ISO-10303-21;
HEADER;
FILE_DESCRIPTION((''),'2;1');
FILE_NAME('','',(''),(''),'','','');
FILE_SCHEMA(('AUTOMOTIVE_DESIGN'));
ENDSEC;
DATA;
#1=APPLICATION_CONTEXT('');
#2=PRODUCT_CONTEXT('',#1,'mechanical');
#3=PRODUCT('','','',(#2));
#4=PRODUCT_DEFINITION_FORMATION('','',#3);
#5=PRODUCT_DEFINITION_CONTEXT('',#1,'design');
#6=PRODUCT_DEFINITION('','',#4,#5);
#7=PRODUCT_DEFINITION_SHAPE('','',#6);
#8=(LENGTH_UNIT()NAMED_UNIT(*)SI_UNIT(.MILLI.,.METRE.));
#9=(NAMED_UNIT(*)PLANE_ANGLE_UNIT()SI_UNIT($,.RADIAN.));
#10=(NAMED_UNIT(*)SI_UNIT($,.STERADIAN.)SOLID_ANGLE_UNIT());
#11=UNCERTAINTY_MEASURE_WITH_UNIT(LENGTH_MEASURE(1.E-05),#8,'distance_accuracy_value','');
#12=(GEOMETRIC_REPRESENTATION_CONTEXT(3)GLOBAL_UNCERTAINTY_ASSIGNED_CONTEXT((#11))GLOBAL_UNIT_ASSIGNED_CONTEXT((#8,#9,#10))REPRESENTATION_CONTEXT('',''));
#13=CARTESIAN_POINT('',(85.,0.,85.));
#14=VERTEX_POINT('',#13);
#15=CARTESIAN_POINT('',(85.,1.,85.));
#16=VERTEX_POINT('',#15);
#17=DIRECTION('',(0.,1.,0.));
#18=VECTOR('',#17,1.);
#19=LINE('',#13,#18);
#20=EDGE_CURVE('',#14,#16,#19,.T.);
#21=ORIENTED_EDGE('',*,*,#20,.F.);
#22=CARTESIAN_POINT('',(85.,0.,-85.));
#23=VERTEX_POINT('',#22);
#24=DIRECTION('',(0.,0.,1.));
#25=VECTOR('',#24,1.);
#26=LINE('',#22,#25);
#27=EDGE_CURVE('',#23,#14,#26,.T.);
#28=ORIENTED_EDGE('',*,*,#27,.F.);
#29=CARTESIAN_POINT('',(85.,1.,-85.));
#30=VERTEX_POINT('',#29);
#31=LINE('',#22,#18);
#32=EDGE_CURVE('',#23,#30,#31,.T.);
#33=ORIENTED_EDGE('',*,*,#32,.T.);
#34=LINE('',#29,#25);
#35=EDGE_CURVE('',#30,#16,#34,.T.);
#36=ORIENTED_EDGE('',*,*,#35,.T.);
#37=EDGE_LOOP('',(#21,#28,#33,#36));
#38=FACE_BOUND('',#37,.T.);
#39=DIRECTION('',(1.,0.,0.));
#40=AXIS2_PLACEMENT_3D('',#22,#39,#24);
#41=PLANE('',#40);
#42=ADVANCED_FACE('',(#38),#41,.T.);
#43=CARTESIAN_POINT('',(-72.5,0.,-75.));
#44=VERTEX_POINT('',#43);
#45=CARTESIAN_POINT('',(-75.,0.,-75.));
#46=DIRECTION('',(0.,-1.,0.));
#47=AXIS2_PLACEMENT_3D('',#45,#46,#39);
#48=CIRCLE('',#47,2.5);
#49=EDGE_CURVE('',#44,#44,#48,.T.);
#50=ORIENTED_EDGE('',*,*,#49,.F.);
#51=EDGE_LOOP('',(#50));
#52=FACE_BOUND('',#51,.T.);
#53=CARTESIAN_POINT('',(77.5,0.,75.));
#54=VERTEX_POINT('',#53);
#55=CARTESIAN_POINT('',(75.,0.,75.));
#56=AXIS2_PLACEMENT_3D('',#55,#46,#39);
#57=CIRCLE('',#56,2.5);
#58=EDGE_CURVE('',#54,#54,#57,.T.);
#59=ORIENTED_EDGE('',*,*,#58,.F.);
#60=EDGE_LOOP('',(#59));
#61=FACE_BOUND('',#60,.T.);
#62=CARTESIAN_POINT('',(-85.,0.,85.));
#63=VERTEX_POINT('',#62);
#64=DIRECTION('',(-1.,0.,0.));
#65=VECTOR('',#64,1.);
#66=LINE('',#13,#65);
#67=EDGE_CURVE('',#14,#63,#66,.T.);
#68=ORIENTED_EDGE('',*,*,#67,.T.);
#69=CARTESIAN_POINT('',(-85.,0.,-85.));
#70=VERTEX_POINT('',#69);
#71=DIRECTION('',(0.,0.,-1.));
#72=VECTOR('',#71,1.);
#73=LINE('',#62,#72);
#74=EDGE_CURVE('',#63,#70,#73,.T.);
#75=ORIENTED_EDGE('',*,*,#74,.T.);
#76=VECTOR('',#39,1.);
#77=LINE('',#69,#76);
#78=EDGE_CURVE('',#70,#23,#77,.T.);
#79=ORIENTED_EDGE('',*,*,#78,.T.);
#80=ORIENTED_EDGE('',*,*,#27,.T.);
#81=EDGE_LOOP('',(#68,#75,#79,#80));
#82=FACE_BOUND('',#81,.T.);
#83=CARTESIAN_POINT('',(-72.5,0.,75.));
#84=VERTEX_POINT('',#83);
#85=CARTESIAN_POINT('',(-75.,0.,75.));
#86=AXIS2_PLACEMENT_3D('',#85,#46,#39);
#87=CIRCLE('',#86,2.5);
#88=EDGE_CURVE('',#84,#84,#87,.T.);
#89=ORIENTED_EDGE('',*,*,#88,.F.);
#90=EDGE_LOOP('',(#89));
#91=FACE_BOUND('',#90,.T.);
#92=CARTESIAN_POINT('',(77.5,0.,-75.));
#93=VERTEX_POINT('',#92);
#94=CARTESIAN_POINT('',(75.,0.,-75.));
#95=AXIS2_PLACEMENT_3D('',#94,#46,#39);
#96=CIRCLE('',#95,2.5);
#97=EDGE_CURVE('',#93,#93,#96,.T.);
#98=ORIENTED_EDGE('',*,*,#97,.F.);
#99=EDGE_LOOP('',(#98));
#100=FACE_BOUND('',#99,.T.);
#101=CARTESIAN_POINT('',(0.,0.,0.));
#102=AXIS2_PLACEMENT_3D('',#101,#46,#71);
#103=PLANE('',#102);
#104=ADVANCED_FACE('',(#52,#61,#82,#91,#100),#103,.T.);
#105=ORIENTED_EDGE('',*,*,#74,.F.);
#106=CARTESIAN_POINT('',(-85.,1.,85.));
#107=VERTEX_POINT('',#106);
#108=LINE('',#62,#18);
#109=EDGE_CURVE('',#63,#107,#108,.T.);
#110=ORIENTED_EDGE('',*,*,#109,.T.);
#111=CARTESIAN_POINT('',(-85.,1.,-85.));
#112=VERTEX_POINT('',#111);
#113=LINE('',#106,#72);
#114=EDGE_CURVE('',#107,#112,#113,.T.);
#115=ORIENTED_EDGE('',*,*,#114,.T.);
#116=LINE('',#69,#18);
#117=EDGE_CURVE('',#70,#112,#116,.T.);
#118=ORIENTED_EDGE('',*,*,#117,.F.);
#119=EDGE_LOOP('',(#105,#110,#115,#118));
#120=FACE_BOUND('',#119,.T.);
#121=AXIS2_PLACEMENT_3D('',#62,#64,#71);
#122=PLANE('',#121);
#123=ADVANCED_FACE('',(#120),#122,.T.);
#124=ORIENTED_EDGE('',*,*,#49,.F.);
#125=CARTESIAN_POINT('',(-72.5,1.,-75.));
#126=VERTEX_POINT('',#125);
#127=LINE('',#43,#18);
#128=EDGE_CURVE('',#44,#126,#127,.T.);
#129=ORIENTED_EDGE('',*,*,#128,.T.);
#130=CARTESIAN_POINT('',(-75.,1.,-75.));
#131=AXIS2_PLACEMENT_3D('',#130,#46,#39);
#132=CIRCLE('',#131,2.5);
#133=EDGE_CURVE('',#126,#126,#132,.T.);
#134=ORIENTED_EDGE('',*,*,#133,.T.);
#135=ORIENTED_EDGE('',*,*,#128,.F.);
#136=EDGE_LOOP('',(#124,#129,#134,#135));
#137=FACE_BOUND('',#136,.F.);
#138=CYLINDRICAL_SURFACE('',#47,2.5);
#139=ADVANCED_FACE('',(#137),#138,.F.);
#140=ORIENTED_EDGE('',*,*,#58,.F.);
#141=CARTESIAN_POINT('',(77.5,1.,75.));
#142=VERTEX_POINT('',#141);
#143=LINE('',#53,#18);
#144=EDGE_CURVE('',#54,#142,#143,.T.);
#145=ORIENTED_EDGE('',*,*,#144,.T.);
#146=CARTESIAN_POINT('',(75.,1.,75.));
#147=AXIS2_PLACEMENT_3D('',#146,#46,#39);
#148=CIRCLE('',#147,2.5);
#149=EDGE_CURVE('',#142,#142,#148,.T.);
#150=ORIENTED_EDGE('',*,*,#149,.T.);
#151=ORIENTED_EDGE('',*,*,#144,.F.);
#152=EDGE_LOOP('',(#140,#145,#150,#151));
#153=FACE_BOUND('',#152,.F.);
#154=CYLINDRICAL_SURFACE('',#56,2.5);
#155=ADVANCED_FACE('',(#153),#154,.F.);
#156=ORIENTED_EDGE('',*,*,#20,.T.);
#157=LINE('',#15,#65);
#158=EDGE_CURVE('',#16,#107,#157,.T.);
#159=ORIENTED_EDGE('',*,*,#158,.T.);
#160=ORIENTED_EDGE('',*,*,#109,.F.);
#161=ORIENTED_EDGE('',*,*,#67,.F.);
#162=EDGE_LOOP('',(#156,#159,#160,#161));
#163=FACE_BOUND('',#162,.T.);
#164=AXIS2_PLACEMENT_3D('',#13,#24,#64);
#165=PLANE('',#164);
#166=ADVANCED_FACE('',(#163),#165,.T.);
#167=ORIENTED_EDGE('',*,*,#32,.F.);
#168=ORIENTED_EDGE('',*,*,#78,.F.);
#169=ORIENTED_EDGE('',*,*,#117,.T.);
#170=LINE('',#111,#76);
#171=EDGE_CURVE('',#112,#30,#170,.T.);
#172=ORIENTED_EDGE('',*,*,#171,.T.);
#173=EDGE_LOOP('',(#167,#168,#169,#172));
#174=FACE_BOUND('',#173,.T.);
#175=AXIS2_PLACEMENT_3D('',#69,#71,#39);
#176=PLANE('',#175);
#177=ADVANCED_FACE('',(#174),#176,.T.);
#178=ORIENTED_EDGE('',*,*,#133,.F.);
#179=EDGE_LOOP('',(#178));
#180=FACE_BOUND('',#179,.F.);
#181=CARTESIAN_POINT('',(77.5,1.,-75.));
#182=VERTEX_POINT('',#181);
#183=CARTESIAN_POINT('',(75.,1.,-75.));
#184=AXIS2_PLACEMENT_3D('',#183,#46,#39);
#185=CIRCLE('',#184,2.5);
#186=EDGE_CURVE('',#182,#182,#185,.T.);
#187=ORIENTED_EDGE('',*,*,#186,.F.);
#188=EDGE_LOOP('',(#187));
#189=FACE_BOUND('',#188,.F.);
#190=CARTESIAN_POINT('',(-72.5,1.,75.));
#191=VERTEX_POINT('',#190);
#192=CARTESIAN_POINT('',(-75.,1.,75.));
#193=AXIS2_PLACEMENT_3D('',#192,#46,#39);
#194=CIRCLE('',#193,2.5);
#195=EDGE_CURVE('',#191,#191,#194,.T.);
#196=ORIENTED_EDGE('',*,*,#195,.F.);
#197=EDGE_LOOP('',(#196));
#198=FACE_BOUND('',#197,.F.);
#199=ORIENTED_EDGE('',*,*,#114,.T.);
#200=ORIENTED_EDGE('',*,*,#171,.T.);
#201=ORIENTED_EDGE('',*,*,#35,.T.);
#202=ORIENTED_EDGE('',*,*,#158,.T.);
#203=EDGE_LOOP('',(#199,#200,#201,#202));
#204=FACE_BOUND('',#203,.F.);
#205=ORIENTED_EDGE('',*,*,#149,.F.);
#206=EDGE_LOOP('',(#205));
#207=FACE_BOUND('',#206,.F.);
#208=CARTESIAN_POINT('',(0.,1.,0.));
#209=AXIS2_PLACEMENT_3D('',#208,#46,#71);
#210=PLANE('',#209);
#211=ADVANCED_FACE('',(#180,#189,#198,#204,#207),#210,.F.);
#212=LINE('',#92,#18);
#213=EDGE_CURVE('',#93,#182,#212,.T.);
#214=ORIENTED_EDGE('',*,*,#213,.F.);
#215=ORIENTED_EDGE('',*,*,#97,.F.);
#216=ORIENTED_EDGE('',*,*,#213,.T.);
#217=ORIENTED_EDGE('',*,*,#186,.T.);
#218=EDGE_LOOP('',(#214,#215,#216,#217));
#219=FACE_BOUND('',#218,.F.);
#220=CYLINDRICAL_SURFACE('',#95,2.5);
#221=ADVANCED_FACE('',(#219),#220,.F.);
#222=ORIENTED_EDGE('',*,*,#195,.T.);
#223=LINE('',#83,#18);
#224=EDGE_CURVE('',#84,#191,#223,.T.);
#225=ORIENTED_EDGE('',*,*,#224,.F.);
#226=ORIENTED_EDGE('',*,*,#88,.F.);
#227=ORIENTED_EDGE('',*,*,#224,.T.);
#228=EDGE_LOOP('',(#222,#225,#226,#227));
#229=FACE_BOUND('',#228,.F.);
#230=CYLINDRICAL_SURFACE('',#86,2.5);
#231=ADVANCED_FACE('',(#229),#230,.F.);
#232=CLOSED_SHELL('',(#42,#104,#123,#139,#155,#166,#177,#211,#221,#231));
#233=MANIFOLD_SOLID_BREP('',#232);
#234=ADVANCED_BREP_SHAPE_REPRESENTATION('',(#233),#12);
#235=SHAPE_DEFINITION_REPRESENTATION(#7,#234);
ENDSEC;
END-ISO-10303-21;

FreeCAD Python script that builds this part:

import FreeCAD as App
import Part
import Sketcher
from FreeCAD import Vector


def add_polygon(sketch, points):
    """Adds a closed chain of lines whose ends are joined by coincident constraints."""
    first, n = sketch.GeometryCount, len(points)
    for a, b in zip(points, points[1:] + points[:1]):
        sketch.addGeometry(Part.LineSegment(App.Vector(*a, 0), App.Vector(*b, 0)), False)
    for i in range(n):
        sketch.addConstraint(Sketcher.Constraint("Coincident", first + i, 2, first + (i + 1) % n, 1))

doc = App.newDocument("Part")
body = doc.addObject("PartDesign::Body", "Body")

# Sketch on XZ plane
sketch1 = body.newObject("Sketcher::SketchObject", "Sketch")
sketch1.AttachmentSupport = (doc.getObject("XZ_Plane"), [""])
sketch1.MapMode = "FlatFace"
add_polygon(sketch1, [(85, -85), (85, 85), (-85, 85), (-85, -85)])  # lines 0-3
sketch1.addConstraint([
    Sketcher.Constraint("Vertical", 0),
    Sketcher.Constraint("Horizontal", 1),
    Sketcher.Constraint("Vertical", 2),
    Sketcher.Constraint("Horizontal", 3),
    Sketcher.Constraint("Symmetric", 0, 2, 2, 2, -1, 1),
    Sketcher.Constraint("Equal", 3, 0),
    Sketcher.Constraint("DistanceX", 1, 2, 1, 1, 170.0),
])
pad1 = body.newObject("PartDesign::Pad", "Pad")
pad1.Profile = sketch1
pad1.Length = 1
pad1.Reversed = True

# Sketch on XZ plane
sketch2 = body.newObject("Sketcher::SketchObject", "Sketch001")
sketch2.AttachmentSupport = (doc.getObject("XZ_Plane"), [""])
sketch2.MapMode = "FlatFace"
sketch2.addGeometry([
    Part.Circle(Vector(-75, 75, 0), Vector(0, 0, 1), 2.5),
    Part.Circle(Vector(75, 75, 0), Vector(0, 0, 1), 2.5),
    Part.Circle(Vector(75, -75, 0), Vector(0, 0, 1), 2.5),
    Part.Circle(Vector(-75, -75, 0), Vector(0, 0, 1), 2.5),
], False)
sketch2.addConstraint([
    Sketcher.Constraint("Equal", 0, 1),
    Sketcher.Constraint("Equal", 1, 2),
    Sketcher.Constraint("Equal", 2, 3),
    Sketcher.Constraint("Symmetric", 0, 3, 2, 3, -1, 1),
    Sketcher.Constraint("Symmetric", 1, 3, 3, 3, -1, 1),
    Sketcher.Constraint("Symmetric", 0, 3, 1, 3, -2),
    Sketcher.Constraint("Diameter", 0, 5.0),
    Sketcher.Constraint("DistanceX", 0, 3, -1, 1, 75.0),
    Sketcher.Constraint("DistanceY", -1, 1, 0, 3, 75.0),
])
pocket1 = body.newObject("PartDesign::Pocket", "Pocket")
pocket1.Profile = sketch2
pocket1.Type = "ThroughAll"

doc.recompute()
